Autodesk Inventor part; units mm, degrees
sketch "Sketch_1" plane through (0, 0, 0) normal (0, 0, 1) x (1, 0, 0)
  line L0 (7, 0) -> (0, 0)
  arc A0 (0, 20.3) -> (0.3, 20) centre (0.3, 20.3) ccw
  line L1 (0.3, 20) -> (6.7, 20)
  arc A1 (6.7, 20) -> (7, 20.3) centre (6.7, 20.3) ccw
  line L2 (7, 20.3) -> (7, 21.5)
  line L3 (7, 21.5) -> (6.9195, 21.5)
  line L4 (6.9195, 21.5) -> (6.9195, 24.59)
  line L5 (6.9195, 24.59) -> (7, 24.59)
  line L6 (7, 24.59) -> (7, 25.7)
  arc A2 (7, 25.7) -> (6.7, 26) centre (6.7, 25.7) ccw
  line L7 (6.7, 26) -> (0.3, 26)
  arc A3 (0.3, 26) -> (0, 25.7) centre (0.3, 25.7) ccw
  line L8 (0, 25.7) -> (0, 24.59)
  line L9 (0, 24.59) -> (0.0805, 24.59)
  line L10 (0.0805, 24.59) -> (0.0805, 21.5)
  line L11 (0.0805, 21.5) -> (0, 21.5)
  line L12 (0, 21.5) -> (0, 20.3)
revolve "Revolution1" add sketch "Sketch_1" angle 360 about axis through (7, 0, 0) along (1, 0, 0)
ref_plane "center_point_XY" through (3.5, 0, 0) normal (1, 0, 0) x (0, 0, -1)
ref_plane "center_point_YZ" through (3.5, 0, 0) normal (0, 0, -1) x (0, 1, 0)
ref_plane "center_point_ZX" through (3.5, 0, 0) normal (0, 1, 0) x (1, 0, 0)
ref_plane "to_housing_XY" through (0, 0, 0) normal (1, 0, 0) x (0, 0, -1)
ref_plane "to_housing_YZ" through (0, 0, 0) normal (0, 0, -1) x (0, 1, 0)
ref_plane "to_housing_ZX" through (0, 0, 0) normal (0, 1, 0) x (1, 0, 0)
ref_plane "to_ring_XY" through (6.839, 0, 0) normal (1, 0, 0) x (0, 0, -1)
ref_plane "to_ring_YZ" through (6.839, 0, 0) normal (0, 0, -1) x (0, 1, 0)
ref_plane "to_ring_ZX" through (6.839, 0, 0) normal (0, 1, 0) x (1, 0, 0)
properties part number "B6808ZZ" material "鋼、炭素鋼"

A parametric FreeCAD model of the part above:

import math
import FreeCAD as App
import Part
import Sketcher

V = App.Vector
Q = App.Units.Quantity

doc = App.newDocument("Part")
params = doc.addObject("Spreadsheet::Sheet", "Params")
for row, (alias, value) in enumerate([
    ("sketch1_radius", "0.3 mm"),
    ("sketch1_width", "6.4 mm"),
    ("sketch1_height", "1.2 mm"),
    ("sketch1_height2", "3.09 mm"),
    ("revolution_angle", "360 deg"),
], start=1):
    params.set(f"A{row}", alias)
    params.set(f"B{row}", "=" + value)
    params.setAlias(f"B{row}", alias)

body = doc.addObject("PartDesign::Body", "Body")

# Sketch on XY plane
sketch1 = body.newObject("Sketcher::SketchObject", "Sketch")
sketch1.AttachmentSupport = (doc.getObject("XY_Plane"), [""])
sketch1.MapMode = "FlatFace"
sketch1.addGeometry([
    Part.LineSegment(V(0, 21.5, 0), V(0, 20.3, 0)),  # 0
    Part.ArcOfCircle(Part.Circle(V(0.3, 20.3, 0), V(0, 0, 1), 0.3), math.radians(180), math.radians(270)),  # 1
    Part.LineSegment(V(0.3, 20, 0), V(6.7, 20, 0)),  # 2
    Part.ArcOfCircle(Part.Circle(V(6.7, 20.3, 0), V(0, 0, 1), 0.3), math.radians(-90), math.radians(0)),  # 3
    Part.LineSegment(V(7, 20.3, 0), V(7, 21.5, 0)),  # 4
    Part.LineSegment(V(7, 21.5, 0), V(6.92, 21.5, 0)),  # 5
    Part.LineSegment(V(6.92, 21.5, 0), V(6.92, 24.59, 0)),  # 6
    Part.LineSegment(V(6.92, 24.59, 0), V(7, 24.59, 0)),  # 7
    Part.LineSegment(V(7, 24.59, 0), V(7, 25.7, 0)),  # 8
    Part.ArcOfCircle(Part.Circle(V(6.7, 25.7, 0), V(0, 0, 1), 0.3), math.radians(0), math.radians(90)),  # 9
    Part.LineSegment(V(6.7, 26, 0), V(0.3, 26, 0)),  # 10
    Part.ArcOfCircle(Part.Circle(V(0.3, 25.7, 0), V(0, 0, 1), 0.3), math.radians(90), math.radians(180)),  # 11
    Part.LineSegment(V(0, 25.7, 0), V(0, 24.59, 0)),  # 12
    Part.LineSegment(V(0, 24.59, 0), V(0.08, 24.59, 0)),  # 13
    Part.LineSegment(V(0.08, 24.59, 0), V(0.08, 21.5, 0)),  # 14
    Part.LineSegment(V(0.08, 21.5, 0), V(0, 21.5, 0)),  # 15
], False)
sketch1.addConstraint([
    Sketcher.Constraint("Tangent", 0, 2, 1, 1),
    Sketcher.Constraint("Tangent", 1, 2, 2, 1),
    Sketcher.Constraint("Tangent", 2, 2, 3, 1),
    Sketcher.Constraint("Tangent", 3, 2, 4, 1),
    Sketcher.Constraint("Coincident", 4, 2, 5, 1),
    Sketcher.Constraint("Coincident", 5, 2, 6, 1),
    Sketcher.Constraint("Coincident", 6, 2, 7, 1),
    Sketcher.Constraint("Coincident", 7, 2, 8, 1),
    Sketcher.Constraint("Tangent", 8, 2, 9, 1),
    Sketcher.Constraint("Tangent", 9, 2, 10, 1),
    Sketcher.Constraint("Tangent", 10, 2, 11, 1),
    Sketcher.Constraint("Tangent", 11, 2, 12, 1),
    Sketcher.Constraint("Coincident", 12, 2, 13, 1),
    Sketcher.Constraint("Coincident", 13, 2, 14, 1),
    Sketcher.Constraint("Coincident", 14, 2, 15, 1),
    Sketcher.Constraint("Coincident", 15, 2, 0, 1),
    Sketcher.Constraint("Vertical", 0),
    Sketcher.Constraint("Horizontal", 2),
    Sketcher.Constraint("Vertical", 4),
    Sketcher.Constraint("Horizontal", 5),
    Sketcher.Constraint("Vertical", 6),
    Sketcher.Constraint("Horizontal", 7),
    Sketcher.Constraint("Vertical", 8),
    Sketcher.Constraint("Horizontal", 10),
    Sketcher.Constraint("Vertical", 12),
    Sketcher.Constraint("Horizontal", 13),
    Sketcher.Constraint("Vertical", 14),
    Sketcher.Constraint("Horizontal", 15),
    Sketcher.Constraint("Equal", 1, 3),
    Sketcher.Constraint("Equal", 3, 9),
    Sketcher.Constraint("Equal", 9, 11),
    Sketcher.Constraint("PointOnObject", 0, 2, -2),
    Sketcher.Constraint("PointOnObject", 11, 2, -2),
    Sketcher.Constraint("Horizontal", 7, 2, 12, 2),
    Sketcher.Constraint("Horizontal", 5, 2, 14, 2),
    Sketcher.Constraint("Vertical", 3, 3, 9, 3),
    Sketcher.Constraint("Equal", 7, 13),
    Sketcher.Constraint("Radius", 1, Q("0.3 mm")),
    Sketcher.Constraint("DistanceX", 2, 1, 2, 2, Q("6.4 mm")),
    Sketcher.Constraint("DistanceY", 0, 2, 0, 1, Q("1.2 mm")),
    Sketcher.Constraint("DistanceY", -1, 1, 1, 2, Q("20 mm")),
    Sketcher.Constraint("DistanceY", -1, 1, 9, 2, Q("26 mm")),
    Sketcher.Constraint("DistanceY", 6, 1, 6, 2, Q("3.09 mm")),
    Sketcher.Constraint("DistanceX", 5, 2, 5, 1, Q("0.0805 mm")),
])
sketch1.setExpression("Constraints[37]", "Params.sketch1_radius")
sketch1.setExpression("Constraints[38]", "Params.sketch1_width")
sketch1.setExpression("Constraints[39]", "Params.sketch1_height")
sketch1.setExpression("Constraints[42]", "Params.sketch1_height2")
revolution = body.newObject("PartDesign::Revolution", "Revolution")
revolution.Profile = sketch1
revolution.ReferenceAxis = (sketch1, ["H_Axis"])
revolution.setExpression("Angle", "Params.revolution_angle")

doc.recompute()
